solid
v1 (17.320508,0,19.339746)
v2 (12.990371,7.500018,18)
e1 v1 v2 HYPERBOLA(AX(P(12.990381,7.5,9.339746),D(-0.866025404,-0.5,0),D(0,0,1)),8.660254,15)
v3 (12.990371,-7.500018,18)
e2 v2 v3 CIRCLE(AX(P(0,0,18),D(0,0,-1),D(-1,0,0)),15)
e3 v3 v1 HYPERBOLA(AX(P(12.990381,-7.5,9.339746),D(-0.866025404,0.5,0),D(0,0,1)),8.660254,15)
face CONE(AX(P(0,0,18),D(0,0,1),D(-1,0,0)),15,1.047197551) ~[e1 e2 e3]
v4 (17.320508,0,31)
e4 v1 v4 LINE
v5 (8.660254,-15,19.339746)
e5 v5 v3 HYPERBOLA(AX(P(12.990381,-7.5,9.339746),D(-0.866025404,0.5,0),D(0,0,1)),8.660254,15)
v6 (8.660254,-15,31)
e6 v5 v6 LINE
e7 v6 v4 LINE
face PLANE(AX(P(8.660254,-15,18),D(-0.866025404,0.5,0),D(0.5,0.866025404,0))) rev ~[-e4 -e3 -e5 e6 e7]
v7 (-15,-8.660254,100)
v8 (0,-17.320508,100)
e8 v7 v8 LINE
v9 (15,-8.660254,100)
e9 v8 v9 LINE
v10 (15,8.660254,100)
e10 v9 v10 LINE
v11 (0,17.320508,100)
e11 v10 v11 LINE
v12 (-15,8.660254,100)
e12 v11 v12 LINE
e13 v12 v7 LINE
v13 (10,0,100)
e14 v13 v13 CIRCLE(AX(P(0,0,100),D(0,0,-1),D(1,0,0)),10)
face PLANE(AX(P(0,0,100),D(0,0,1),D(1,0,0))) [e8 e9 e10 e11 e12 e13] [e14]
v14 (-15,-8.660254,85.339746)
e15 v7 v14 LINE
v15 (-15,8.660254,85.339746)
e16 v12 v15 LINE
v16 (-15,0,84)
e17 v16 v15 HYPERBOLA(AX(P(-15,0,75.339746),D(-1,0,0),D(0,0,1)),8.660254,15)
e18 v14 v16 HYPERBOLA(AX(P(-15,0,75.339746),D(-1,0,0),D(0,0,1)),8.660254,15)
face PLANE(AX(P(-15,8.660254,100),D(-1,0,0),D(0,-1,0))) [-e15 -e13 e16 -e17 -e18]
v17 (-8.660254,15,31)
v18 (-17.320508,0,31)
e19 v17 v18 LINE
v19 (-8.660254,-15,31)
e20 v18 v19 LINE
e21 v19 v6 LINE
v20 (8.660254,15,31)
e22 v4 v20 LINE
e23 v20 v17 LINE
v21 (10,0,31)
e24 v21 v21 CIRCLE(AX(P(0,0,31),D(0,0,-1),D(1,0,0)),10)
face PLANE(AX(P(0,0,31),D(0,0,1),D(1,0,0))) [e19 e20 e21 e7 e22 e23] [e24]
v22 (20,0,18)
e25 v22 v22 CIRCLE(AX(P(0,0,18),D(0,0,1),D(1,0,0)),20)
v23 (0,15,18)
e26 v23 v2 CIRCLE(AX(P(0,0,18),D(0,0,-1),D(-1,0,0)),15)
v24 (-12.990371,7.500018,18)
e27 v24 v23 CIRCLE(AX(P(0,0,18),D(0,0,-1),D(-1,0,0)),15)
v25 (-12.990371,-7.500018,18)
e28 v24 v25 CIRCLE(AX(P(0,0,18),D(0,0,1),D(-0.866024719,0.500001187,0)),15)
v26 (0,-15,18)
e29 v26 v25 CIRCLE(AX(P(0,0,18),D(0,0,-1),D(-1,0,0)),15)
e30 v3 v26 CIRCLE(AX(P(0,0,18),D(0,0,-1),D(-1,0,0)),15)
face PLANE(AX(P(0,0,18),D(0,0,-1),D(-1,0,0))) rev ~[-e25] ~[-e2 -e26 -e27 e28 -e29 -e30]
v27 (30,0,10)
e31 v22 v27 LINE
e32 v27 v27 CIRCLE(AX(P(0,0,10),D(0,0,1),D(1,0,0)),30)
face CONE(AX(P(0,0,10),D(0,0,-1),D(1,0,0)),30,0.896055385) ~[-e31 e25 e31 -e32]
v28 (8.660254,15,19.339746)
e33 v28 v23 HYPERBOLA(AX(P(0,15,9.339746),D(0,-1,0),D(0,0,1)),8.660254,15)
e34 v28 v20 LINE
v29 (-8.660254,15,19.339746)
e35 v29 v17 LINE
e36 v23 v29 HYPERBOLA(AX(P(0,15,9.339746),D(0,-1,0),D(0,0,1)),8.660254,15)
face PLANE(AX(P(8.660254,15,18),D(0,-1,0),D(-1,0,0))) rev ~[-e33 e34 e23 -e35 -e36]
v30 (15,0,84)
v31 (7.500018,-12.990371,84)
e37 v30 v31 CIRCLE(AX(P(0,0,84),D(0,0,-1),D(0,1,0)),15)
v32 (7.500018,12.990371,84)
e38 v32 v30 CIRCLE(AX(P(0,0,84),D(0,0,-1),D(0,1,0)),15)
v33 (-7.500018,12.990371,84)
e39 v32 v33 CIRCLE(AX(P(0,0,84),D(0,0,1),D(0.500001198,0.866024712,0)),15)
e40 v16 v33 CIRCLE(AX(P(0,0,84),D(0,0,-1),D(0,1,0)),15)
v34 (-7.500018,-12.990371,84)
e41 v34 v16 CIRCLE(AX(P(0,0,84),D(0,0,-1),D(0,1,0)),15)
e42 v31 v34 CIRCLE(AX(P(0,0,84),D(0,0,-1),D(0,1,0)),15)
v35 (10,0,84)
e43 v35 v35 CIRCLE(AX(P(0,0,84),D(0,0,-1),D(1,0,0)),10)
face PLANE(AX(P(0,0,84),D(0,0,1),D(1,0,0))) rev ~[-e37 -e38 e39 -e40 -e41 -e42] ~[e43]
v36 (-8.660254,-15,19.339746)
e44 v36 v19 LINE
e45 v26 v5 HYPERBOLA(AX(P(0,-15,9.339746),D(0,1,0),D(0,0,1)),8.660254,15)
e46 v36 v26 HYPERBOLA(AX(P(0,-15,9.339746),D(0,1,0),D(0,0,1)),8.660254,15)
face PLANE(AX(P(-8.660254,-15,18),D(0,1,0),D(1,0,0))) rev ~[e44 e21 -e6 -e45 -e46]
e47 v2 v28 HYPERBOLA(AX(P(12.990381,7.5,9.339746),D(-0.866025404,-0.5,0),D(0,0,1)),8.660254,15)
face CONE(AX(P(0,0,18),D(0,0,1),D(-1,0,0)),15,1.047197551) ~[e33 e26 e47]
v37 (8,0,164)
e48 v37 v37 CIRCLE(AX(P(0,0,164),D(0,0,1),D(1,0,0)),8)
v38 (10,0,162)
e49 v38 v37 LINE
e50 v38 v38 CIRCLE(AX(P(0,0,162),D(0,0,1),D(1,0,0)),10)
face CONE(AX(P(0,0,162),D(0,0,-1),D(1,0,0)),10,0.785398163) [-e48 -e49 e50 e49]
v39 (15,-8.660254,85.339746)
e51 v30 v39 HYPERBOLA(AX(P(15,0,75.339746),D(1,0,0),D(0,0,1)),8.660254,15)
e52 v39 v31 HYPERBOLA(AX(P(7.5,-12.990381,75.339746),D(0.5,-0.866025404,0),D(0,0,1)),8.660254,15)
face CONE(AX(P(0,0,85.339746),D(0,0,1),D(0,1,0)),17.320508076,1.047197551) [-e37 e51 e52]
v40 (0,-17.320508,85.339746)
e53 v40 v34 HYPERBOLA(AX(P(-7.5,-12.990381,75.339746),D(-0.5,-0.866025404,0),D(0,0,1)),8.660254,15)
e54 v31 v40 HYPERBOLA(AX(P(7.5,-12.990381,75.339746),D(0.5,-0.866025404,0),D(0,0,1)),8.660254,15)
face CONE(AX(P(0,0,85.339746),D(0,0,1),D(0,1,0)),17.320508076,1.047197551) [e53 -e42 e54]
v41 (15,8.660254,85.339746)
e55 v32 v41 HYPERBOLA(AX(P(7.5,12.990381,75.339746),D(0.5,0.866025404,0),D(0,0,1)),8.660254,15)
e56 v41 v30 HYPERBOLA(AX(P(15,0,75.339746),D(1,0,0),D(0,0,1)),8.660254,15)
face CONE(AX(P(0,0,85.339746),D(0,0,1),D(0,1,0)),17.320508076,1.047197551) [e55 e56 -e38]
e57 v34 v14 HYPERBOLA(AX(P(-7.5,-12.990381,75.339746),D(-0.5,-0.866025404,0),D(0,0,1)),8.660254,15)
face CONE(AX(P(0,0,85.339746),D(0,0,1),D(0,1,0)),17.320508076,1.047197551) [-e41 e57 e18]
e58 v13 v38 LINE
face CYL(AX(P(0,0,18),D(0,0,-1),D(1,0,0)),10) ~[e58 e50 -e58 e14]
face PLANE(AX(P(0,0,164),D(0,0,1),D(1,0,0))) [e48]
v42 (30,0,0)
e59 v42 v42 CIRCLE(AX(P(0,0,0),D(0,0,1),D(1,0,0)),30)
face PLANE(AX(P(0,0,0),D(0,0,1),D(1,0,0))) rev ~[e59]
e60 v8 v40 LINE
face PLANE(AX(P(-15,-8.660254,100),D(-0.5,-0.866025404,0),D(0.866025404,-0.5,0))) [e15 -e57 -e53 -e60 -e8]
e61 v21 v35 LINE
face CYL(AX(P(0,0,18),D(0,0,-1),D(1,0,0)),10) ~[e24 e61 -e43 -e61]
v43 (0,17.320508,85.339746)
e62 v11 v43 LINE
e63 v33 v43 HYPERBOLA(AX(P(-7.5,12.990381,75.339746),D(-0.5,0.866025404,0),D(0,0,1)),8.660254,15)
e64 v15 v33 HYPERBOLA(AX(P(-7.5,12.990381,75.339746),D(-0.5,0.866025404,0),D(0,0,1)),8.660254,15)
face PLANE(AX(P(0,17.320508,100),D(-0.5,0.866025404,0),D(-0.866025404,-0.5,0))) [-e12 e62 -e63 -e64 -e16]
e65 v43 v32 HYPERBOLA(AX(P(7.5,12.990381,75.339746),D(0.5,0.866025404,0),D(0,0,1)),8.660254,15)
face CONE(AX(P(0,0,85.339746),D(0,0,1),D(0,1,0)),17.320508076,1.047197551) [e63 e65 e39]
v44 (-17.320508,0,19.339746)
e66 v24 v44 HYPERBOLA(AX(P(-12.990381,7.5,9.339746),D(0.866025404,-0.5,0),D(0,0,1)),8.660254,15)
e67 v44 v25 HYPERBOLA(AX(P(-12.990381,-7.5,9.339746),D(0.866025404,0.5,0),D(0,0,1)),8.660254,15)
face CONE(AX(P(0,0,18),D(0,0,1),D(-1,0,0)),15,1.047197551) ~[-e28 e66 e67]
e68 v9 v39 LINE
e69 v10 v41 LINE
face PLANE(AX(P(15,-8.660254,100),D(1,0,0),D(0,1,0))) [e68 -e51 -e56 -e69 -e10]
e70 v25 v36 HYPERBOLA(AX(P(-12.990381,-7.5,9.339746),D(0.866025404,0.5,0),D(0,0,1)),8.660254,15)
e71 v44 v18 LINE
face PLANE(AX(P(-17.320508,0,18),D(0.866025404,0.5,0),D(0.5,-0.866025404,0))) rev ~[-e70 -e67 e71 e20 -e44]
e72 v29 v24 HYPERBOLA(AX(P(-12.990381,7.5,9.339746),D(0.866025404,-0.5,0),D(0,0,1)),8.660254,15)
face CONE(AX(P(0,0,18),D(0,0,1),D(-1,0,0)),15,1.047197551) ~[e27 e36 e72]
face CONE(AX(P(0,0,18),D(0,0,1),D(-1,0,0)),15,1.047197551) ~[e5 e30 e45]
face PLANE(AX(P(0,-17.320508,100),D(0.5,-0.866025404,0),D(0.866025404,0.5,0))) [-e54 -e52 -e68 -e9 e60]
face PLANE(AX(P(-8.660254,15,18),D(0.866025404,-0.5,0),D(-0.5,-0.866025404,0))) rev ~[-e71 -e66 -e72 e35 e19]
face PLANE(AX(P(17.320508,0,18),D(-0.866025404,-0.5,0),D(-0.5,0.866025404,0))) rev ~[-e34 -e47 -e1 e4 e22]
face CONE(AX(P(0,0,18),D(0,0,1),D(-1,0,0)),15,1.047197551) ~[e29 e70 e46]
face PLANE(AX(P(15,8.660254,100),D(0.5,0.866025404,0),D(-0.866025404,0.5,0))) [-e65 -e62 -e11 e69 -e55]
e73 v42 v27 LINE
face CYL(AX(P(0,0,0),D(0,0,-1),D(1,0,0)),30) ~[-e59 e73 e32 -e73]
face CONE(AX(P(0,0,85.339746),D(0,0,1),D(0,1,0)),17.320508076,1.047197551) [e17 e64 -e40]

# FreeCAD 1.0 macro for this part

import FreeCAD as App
import Part
import Sketcher
from FreeCAD import Vector
Q = App.Units.Quantity


def edges_at(feature, points):
    """Names of the edges that pass closest to the given points."""
    edges = feature.Shape.Edges
    near = lambda p: min(range(len(edges)), key=lambda i: edges[i].distToShape(Part.Vertex(*p))[0])
    return sorted({f"Edge{near(p) + 1}" for p in points})


def add_polygon(sketch, points):
    """Adds a closed chain of lines whose ends are joined by coincident constraints."""
    first, n = sketch.GeometryCount, len(points)
    for a, b in zip(points, points[1:] + points[:1]):
        sketch.addGeometry(Part.LineSegment(App.Vector(*a, 0), App.Vector(*b, 0)), False)
    for i in range(n):
        sketch.addConstraint(Sketcher.Constraint("Coincident", first + i, 2, first + (i + 1) % n, 1))

doc = App.newDocument("Part")
body = doc.addObject("PartDesign::Body", "Body")

# Sketch on XY plane
sketch1 = doc.addObject("Sketcher::SketchObject", "Sketch")
body.addObject(sketch1)
sketch1.AttachmentSupport = (doc.XY_Plane, [""])
sketch1.MapMode = "FlatFace"
sketch1.addGeometry(Part.Circle(Vector(0, 0, 0), Vector(0, 0, 1), 30), False)
sketch1.addConstraint(Sketcher.Constraint("Coincident", 0, 3, -1, 1))
sketch1.addConstraint(Sketcher.Constraint("Diameter", 0, 60.0))
pad1 = doc.addObject("PartDesign::Pad", "Pad")
body.addObject(pad1)
pad1.Profile = sketch1
pad1.Length = 18

# Sketch on XY plane
sketch2 = doc.addObject("Sketcher::SketchObject", "Sketch001")
body.addObject(sketch2)
sketch2.AttachmentSupport = (doc.XY_Plane, [""])
sketch2.MapMode = "FlatFace"
sketch2.AttachmentOffset = App.Placement(Vector(0, 0, 18), App.Rotation())
sketch2.addGeometry(Part.Circle(Vector(0, 0, 0), Vector(0, 0, 1), 10), False)
sketch2.addConstraint(Sketcher.Constraint("Coincident", 0, 3, -1, 1))
sketch2.addConstraint(Sketcher.Constraint("Diameter", 0, 20.0))
pad2 = doc.addObject("PartDesign::Pad", "Pad001")
body.addObject(pad2)
pad2.Profile = sketch2
pad2.Length = 146
doc.recompute()

chamfer = doc.addObject("PartDesign::Chamfer", "Chamfer")
body.addObject(chamfer)
chamfer.Base = (pad2, edges_at(pad2, [(-10, 0, 164)]))
chamfer.Size = 2
doc.recompute()

chamfer2 = doc.addObject("PartDesign::Chamfer", "Chamfer001")
body.addObject(chamfer2)
chamfer2.Base = (chamfer, edges_at(chamfer, [(-30, 0, 18)]))
chamfer2.ChamferType = "Two distances"
chamfer2.Size = 10
chamfer2.Size2 = 8

# Sketch on XY plane
sketch3 = doc.addObject("Sketcher::SketchObject", "Sketch002")
body.addObject(sketch3)
sketch3.AttachmentSupport = (doc.XY_Plane, [""])
sketch3.MapMode = "FlatFace"
sketch3.AttachmentOffset = App.Placement(Vector(0, 0, 18), App.Rotation())
add_polygon(sketch3, [(9, -15), (17, 0), (9, 15), (-9, 15), (-17, 0), (-9, -15)])  # lines 0-5
sketch3.addConstraint(Sketcher.Constraint("Horizontal", 2))
sketch3.addConstraint(Sketcher.Constraint("Horizontal", 5))
sketch3.addConstraint(Sketcher.Constraint("Symmetric", 0, 2, 3, 2, -1, 1))
sketch3.addConstraint(Sketcher.Constraint("Symmetric", 1, 2, 4, 2, -1, 1))
sketch3.addConstraint(Sketcher.Constraint("PointOnObject", 0, 2, -1))
sketch3.addConstraint(Sketcher.Constraint("Parallel", 0, 3))
sketch3.addConstraint(Sketcher.Constraint("Vertical", 2, 2, 4, 2))
sketch3.addConstraint(Sketcher.Constraint("Angle", 0, Q("60 deg")))
sketch3.addConstraint(Sketcher.Constraint("DistanceY", -1, 1, 1, 2, 15.0))
sketch3.addConstraint(Sketcher.Constraint("DistanceX", 2, 2, 2, 1, 17.320508))
pad3 = doc.addObject("PartDesign::Pad", "Pad002")
body.addObject(pad3)
pad3.Profile = sketch3
pad3.Length = 13

# Sketch on XY plane
sketch4 = doc.addObject("Sketcher::SketchObject", "Sketch003")
body.addObject(sketch4)
sketch4.AttachmentSupport = (doc.XY_Plane, [""])
sketch4.MapMode = "FlatFace"
sketch4.AttachmentOffset = App.Placement(Vector(0, 0, 100), App.Rotation())
add_polygon(sketch4, [(15, 9), (0, 17), (-15, 9), (-15, -9), (0, -17), (15, -9)])  # lines 0-5
sketch4.addConstraint(Sketcher.Constraint("Vertical", 2))
sketch4.addConstraint(Sketcher.Constraint("Vertical", 5))
sketch4.addConstraint(Sketcher.Constraint("Symmetric", 0, 2, 3, 2, -1, 1))
sketch4.addConstraint(Sketcher.Constraint("Symmetric", 1, 2, 4, 2, -1, 1))
sketch4.addConstraint(Sketcher.Constraint("PointOnObject", 0, 2, -2))
sketch4.addConstraint(Sketcher.Constraint("Parallel", 0, 3))
sketch4.addConstraint(Sketcher.Constraint("Horizontal", 2, 2, 4, 2))
sketch4.addConstraint(Sketcher.Constraint("Angle", 0, Q("150 deg")))
sketch4.addConstraint(Sketcher.Constraint("DistanceX", 1, 2, -1, 1, 15.0))
sketch4.addConstraint(Sketcher.Constraint("DistanceY", 2, 2, 2, 1, 17.320508))
pad4 = doc.addObject("PartDesign::Pad", "Pad003")
body.addObject(pad4)
pad4.Profile = sketch4
pad4.Length = 16
pad4.Reversed = True

# Sketch on YZ plane
sketch5 = doc.addObject("Sketcher::SketchObject", "Sketch004")
body.addObject(sketch5)
sketch5.AttachmentSupport = (doc.YZ_Plane, [""])
sketch5.MapMode = "FlatFace"
add_polygon(sketch5, [(15, 84), (17.3, 84), (17.3, 85.3)])  # lines 0-2
sketch5.addConstraint(Sketcher.Constraint("Horizontal", 0))
sketch5.addConstraint(Sketcher.Constraint("Vertical", 1))
sketch5.addConstraint(Sketcher.Constraint("Angle", 2, Q("-150 deg")))
sketch5.addConstraint(Sketcher.Constraint("DistanceY", -1, 1, 0, 2, 84.0))
sketch5.addConstraint(Sketcher.Constraint("DistanceX", -1, 1, 2, 2, 15.0))
sketch5.addConstraint(Sketcher.Constraint("DistanceX", 0, 1, 0, 2, 2.320508))
groove = doc.addObject("PartDesign::Groove", "Groove")
body.addObject(groove)
groove.Profile = sketch5
groove.ReferenceAxis = (sketch5, ["V_Axis"])
groove.Angle = 360

# Sketch on XZ plane
sketch6 = doc.addObject("Sketcher::SketchObject", "Sketch005")
body.addObject(sketch6)
sketch6.AttachmentSupport = (doc.XZ_Plane, [""])
sketch6.MapMode = "FlatFace"
add_polygon(sketch6, [(-17.3, 18), (-15, 18), (-17.3, 19.3)])  # lines 0-2
sketch6.addConstraint(Sketcher.Constraint("Horizontal", 0))
sketch6.addConstraint(Sketcher.Constraint("Vertical", 2))
sketch6.addConstraint(Sketcher.Constraint("Angle", 1, Q("150 deg")))
sketch6.addConstraint(Sketcher.Constraint("DistanceX", 0, 2, -1, 1, 15.0))
sketch6.addConstraint(Sketcher.Constraint("DistanceY", -1, 1, 0, 2, 18.0))
sketch6.addConstraint(Sketcher.Constraint("DistanceX", 0, 1, 0, 2, 2.320508))
groove2 = doc.addObject("PartDesign::Groove", "Groove001")
body.addObject(groove2)
groove2.Profile = sketch6
groove2.ReferenceAxis = (sketch6, ["V_Axis"])
groove2.Angle = 360

doc.recompute()
